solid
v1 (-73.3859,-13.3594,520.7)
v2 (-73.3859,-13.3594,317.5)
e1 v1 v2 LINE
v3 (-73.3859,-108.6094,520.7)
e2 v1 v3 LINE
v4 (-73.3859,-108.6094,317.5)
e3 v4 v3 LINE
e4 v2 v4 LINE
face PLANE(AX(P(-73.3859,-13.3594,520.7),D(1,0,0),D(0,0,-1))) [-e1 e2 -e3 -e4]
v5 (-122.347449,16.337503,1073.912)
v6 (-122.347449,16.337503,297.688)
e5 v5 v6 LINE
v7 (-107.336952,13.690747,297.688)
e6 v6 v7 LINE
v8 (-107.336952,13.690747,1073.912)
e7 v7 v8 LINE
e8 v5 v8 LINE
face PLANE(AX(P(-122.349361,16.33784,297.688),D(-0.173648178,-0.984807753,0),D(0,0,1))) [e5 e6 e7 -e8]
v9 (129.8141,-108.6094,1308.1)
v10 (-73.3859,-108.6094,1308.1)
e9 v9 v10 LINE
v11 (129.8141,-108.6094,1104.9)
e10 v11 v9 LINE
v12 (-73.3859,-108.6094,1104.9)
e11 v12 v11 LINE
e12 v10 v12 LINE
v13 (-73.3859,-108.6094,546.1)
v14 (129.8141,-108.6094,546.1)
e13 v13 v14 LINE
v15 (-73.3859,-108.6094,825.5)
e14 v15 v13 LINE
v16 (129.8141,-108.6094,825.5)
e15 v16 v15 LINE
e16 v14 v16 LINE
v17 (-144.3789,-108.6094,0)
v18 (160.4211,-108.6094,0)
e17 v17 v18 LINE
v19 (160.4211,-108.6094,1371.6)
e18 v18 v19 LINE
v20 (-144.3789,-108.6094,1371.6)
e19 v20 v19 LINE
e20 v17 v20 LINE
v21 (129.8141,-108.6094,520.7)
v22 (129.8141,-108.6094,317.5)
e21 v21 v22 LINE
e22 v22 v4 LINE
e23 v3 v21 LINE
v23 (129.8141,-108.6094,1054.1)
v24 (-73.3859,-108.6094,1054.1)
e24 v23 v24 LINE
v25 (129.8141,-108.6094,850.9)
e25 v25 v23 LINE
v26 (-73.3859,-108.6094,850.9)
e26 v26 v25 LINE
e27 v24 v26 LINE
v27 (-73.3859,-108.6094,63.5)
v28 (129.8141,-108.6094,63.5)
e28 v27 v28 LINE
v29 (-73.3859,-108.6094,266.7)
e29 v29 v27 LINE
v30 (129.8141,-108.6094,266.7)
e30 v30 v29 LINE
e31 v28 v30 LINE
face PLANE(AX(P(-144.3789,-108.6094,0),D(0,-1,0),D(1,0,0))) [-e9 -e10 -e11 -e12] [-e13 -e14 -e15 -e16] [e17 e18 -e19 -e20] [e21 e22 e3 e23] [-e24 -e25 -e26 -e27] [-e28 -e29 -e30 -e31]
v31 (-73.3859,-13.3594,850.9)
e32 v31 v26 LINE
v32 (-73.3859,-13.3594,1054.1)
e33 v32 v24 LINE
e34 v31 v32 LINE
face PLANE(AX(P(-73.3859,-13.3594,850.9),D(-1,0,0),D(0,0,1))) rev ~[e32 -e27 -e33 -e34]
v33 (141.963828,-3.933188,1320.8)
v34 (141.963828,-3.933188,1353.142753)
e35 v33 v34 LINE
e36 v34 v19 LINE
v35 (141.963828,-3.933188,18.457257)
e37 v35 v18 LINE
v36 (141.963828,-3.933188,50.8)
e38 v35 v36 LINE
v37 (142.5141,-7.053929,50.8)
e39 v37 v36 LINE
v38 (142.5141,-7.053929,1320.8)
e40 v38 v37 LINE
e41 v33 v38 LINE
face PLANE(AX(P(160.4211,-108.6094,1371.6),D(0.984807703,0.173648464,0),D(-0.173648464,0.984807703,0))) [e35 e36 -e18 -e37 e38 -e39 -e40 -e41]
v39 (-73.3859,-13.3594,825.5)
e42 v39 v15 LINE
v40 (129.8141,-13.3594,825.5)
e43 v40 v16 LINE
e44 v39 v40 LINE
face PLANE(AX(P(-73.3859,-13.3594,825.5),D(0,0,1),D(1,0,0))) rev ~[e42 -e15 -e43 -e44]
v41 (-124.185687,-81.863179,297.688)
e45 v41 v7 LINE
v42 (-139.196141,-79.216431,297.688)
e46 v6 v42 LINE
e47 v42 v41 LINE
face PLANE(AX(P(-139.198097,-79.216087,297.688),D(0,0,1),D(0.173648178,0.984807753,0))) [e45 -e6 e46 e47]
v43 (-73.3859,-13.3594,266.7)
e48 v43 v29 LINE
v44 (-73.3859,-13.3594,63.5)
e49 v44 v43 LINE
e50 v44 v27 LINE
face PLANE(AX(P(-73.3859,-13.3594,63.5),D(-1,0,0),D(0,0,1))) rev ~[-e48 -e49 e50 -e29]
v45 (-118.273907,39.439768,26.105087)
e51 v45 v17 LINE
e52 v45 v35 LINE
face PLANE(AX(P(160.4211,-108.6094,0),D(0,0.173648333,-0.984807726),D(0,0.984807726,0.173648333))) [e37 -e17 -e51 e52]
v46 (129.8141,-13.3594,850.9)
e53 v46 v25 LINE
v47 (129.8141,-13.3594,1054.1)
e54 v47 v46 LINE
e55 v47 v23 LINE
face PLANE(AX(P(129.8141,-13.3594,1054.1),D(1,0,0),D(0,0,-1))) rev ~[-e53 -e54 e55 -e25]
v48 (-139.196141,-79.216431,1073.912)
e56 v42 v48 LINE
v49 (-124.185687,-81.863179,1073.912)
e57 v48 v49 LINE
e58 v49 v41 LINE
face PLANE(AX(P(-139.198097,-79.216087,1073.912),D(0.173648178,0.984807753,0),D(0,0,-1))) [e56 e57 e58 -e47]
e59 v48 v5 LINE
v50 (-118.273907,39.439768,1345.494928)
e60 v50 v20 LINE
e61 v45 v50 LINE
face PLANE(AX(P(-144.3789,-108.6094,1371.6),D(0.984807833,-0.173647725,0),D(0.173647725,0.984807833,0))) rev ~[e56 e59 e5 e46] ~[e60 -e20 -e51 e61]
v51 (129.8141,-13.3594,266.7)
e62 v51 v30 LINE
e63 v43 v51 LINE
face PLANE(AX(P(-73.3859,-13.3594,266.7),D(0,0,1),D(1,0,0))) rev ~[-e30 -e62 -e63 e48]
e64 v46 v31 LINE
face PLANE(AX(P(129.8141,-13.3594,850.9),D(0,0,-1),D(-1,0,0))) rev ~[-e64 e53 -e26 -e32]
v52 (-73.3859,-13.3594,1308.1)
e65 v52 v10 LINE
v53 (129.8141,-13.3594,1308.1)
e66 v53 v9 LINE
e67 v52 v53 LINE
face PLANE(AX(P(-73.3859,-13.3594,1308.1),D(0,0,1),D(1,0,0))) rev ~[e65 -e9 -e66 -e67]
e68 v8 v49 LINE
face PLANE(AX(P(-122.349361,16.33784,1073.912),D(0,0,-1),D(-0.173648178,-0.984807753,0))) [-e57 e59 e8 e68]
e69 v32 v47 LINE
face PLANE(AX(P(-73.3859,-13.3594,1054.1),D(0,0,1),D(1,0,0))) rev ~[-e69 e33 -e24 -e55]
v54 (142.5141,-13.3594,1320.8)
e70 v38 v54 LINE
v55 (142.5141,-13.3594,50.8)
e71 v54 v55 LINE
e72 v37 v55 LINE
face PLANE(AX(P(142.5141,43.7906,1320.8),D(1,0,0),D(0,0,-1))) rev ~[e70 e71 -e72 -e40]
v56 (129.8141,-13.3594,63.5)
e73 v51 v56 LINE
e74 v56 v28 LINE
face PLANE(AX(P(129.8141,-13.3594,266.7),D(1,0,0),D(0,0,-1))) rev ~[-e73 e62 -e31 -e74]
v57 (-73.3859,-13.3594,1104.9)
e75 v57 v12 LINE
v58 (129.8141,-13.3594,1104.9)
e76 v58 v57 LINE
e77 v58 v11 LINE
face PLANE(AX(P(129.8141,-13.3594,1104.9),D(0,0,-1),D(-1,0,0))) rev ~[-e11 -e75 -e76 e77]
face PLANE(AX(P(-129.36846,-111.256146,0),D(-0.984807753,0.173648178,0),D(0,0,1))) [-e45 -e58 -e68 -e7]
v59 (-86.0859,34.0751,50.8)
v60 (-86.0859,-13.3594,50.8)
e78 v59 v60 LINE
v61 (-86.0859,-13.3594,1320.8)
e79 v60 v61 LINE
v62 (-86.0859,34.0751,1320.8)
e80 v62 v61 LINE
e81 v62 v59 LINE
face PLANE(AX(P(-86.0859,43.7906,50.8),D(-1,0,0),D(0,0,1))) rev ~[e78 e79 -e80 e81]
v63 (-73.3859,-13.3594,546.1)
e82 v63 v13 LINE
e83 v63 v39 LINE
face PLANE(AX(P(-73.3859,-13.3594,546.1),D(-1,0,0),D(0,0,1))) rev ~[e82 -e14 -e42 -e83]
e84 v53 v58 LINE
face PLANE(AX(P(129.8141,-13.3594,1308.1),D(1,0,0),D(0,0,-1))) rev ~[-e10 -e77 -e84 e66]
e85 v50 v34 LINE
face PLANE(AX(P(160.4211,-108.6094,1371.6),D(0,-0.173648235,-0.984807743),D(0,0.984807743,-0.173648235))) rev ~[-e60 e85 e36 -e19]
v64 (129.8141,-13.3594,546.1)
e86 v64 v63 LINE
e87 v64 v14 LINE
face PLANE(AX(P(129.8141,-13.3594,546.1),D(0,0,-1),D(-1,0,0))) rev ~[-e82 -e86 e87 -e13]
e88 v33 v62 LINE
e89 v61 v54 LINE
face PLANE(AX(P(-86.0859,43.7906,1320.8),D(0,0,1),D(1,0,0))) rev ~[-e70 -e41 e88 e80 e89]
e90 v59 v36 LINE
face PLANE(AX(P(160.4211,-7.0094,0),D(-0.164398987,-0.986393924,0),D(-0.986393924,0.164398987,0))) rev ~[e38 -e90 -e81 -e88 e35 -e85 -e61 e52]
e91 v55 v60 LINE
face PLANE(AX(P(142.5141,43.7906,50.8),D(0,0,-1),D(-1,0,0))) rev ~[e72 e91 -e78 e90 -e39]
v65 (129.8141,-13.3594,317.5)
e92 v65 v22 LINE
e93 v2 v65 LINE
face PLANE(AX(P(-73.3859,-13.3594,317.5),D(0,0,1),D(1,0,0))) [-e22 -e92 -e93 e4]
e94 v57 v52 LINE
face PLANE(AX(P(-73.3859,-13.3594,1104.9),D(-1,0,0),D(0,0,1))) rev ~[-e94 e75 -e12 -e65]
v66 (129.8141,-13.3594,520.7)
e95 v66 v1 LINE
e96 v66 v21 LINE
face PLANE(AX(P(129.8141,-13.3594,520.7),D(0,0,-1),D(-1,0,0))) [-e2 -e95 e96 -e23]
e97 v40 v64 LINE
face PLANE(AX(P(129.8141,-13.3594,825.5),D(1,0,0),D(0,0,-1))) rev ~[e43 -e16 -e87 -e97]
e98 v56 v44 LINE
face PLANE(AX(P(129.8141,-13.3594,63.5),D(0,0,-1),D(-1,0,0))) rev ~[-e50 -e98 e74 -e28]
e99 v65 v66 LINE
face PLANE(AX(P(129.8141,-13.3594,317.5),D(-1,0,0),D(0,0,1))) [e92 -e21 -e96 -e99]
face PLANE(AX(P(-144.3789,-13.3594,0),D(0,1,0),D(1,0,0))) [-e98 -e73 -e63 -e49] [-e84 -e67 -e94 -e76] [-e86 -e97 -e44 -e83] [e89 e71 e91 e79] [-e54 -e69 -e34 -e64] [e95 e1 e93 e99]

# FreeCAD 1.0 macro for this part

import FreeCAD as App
import Part
import Sketcher

V = App.Vector
Q = App.Units.Quantity


def add_polygon(sketch, points):
    """Adds a closed chain of lines whose ends are joined by coincident constraints."""
    first, n = sketch.GeometryCount, len(points)
    for a, b in zip(points, points[1:] + points[:1]):
        sketch.addGeometry(Part.LineSegment(App.Vector(*a, 0), App.Vector(*b, 0)), False)
    for i in range(n):
        sketch.addConstraint(Sketcher.Constraint("Coincident", first + i, 2, first + (i + 1) % n, 1))

doc = App.newDocument("Part")
body = doc.addObject("PartDesign::Body", "Body")

# Sketch on XY plane
sketch1 = body.newObject("Sketcher::SketchObject", "Sketch")
sketch1.AttachmentSupport = (doc.getObject("XY_Plane"), [""])
sketch1.MapMode = "FlatFace"
add_polygon(sketch1, [(160, -7), (-144, 44), (-144, -109), (160, -109)])  # lines 0-3
sketch1.addConstraint(Sketcher.Constraint("Vertical", 1))
sketch1.addConstraint(Sketcher.Constraint("Horizontal", 2))
sketch1.addConstraint(Sketcher.Constraint("Vertical", 3))
sketch1.addConstraint(Sketcher.Constraint("DistanceX", 2, 1, 2, 2, Q("12 in")))
sketch1.addConstraint(Sketcher.Constraint("DistanceY", 1, 2, 1, 1, Q("6 in")))
sketch1.addConstraint(Sketcher.Constraint("DistanceY", 3, 1, 3, 2, Q("4 in")))
sketch1.addConstraint(Sketcher.Constraint("DistanceX", 0, 2, -1, 1, Q("5.6842 in")))
sketch1.addConstraint(Sketcher.Constraint("DistanceY", -1, 1, 0, 2, 43.7906))
pad1 = body.newObject("PartDesign::Pad", "Pad")
pad1.Profile = sketch1
pad1.Length = Q("54 in")

# Sketch on YZ plane
sketch2 = body.newObject("Sketcher::SketchObject", "Sketch001")
sketch2.AttachmentSupport = (doc.getObject("YZ_Plane"), [""])
sketch2.MapMode = "FlatFace"
sketch2.AttachmentOffset = App.Placement(V(0, 0, 6.3157913 * 25.4), App.Rotation())
add_polygon(sketch2, [(191, 1509), (-109, 1372), (191, 1319)])  # lines 0-2
sketch2.addConstraint(Sketcher.Constraint("Vertical", 2))
sketch2.addConstraint(Sketcher.Constraint("Angle", 1, Q("-10 deg")))
sketch2.addConstraint(Sketcher.Constraint("DistanceY", -1, 1, 0, 2, Q("54 in")))
sketch2.addConstraint(Sketcher.Constraint("DistanceY", 2, 1, 2, 2, Q("7.489 in")))
sketch2.addConstraint(Sketcher.Constraint("DistanceY", -1, 1, 1, 2, Q("51.9188 in")))
sketch2.addConstraint(Sketcher.Constraint("DistanceX", 0, 2, -1, 1, 108.6094))
pocket1 = body.newObject("PartDesign::Pocket", "Pocket")
pocket1.Profile = sketch2
pocket1.Length = Q("54 in")

# Sketch on YZ plane
sketch3 = body.newObject("Sketcher::SketchObject", "Sketch002")
sketch3.AttachmentSupport = (doc.getObject("YZ_Plane"), [""])
sketch3.MapMode = "FlatFace"
sketch3.AttachmentOffset = App.Placement(V(0, 0, 6.3157913 * 25.4), App.Rotation())
add_polygon(sketch3, [(58, 29), (-109, 0), (58, -35)])  # lines 0-2
sketch3.addConstraint(Sketcher.Constraint("Vertical", 2))
sketch3.addConstraint(Sketcher.Constraint("PointOnObject", 0, 2, -1))
sketch3.addConstraint(Sketcher.Constraint("Angle", 0, Q("-170 deg")))
sketch3.addConstraint(Sketcher.Constraint("DistanceY", 2, 1, 2, 2, 64.7358))
sketch3.addConstraint(Sketcher.Constraint("Distance", 0, 168.6846))
sketch3.addConstraint(Sketcher.Constraint("DistanceX", 0, 2, -1, 1, 108.6094))
pocket2 = body.newObject("PartDesign::Pocket", "Pocket001")
pocket2.Profile = sketch3
pocket2.Length = Q("54 in")

# Sketch on XY plane
sketch4 = body.newObject("Sketcher::SketchObject", "Sketch003")
sketch4.AttachmentSupport = (doc.getObject("XY_Plane"), [""])
sketch4.MapMode = "FlatFace"
sketch4.AttachmentOffset = App.Placement(V(0, 0, 54 * 25.4), App.Rotation())
add_polygon(sketch4, [(-236, 85), (-144, -109), (-110, 85)])  # lines 0-2
sketch4.addConstraint(Sketcher.Constraint("Horizontal", 2))
sketch4.addConstraint(Sketcher.Constraint("Angle", 1, Q("80 deg")))
sketch4.addConstraint(Sketcher.Constraint("Angle", 0, Q("-64.6598 deg")))
sketch4.addConstraint(Sketcher.Constraint("DistanceX", 2, 2, 2, 1, 126.109))
sketch4.addConstraint(Sketcher.Constraint("DistanceX", 0, 2, -1, 1, Q("5.6842 in")))
sketch4.addConstraint(Sketcher.Constraint("DistanceY", 0, 2, -1, 1, 108.6094))
pocket3 = body.newObject("PartDesign::Pocket", "Pocket002")
pocket3.Profile = sketch4
pocket3.Length = Q("54 in")

# Sketch on XY plane
sketch5 = body.newObject("Sketcher::SketchObject", "Sketch004")
sketch5.AttachmentSupport = (doc.getObject("XY_Plane"), [""])
sketch5.MapMode = "FlatFace"
sketch5.AttachmentOffset = App.Placement(V(0, 0, 54 * 25.4), App.Rotation())
add_polygon(sketch5, [(129, 68), (160, -109), (268, 68)])  # lines 0-2
sketch5.addConstraint(Sketcher.Constraint("Horizontal", 2))
sketch5.addConstraint(Sketcher.Constraint("Angle", 0, Q("-80 deg")))
sketch5.addConstraint(Sketcher.Constraint("DistanceX", 2, 2, 2, 1, 138.6038))
sketch5.addConstraint(Sketcher.Constraint("DistanceX", -1, 1, 0, 2, Q("6.3158 in")))
sketch5.addConstraint(Sketcher.Constraint("DistanceY", -1, 1, 1, 2, Q("2.6584 in")))
sketch5.addConstraint(Sketcher.Constraint("Distance", 0, 178.8498))
pocket4 = body.newObject("PartDesign::Pocket", "Pocket003")
pocket4.Profile = sketch5
pocket4.Length = Q("54 in")

# Sketch on XZ plane
sketch6 = body.newObject("Sketcher::SketchObject", "Sketch005")
sketch6.AttachmentSupport = (doc.getObject("XZ_Plane"), [""])
sketch6.MapMode = "FlatFace"
sketch6.AttachmentOffset = App.Placement(V(0, 0, 108.6094), App.Rotation())
add_polygon(sketch6, [(143, 51), (143, 1321), (-86, 1321), (-86, 51)])  # lines 0-3
sketch6.addConstraint(Sketcher.Constraint("Vertical", 0))
sketch6.addConstraint(Sketcher.Constraint("Horizontal", 1))
sketch6.addConstraint(Sketcher.Constraint("Vertical", 2))
sketch6.addConstraint(Sketcher.Constraint("Horizontal", 3))
sketch6.addConstraint(Sketcher.Constraint("DistanceX", 1, 2, 1, 1, Q("9 in")))
sketch6.addConstraint(Sketcher.Constraint("DistanceY", -1, 1, 2, 2, Q("2 in")))
sketch6.addConstraint(Sketcher.Constraint("DistanceY", 0, 1, 0, 2, Q("50 in")))
sketch6.addConstraint(Sketcher.Constraint("DistanceX", -1, 1, 0, 2, Q("5.6108 in")))
pad2 = body.newObject("PartDesign::Pad", "Pad001")
pad2.Profile = sketch6
pad2.Length = Q("6 in")
pad2.Reversed = True

# Sketch on XZ plane
sketch7 = body.newObject("Sketcher::SketchObject", "Sketch006")
sketch7.AttachmentSupport = (doc.getObject("XZ_Plane"), [""])
sketch7.MapMode = "FlatFace"
sketch7.AttachmentOffset = App.Placement(V(0, 0, -43.7906), App.Rotation())
add_polygon(sketch7, [(-86, 51), (-86, 1321), (143, 1321), (143, 51)])  # lines 0-3
sketch7.addConstraint(Sketcher.Constraint("Vertical", 0))
sketch7.addConstraint(Sketcher.Constraint("Horizontal", 1))
sketch7.addConstraint(Sketcher.Constraint("Vertical", 2))
sketch7.addConstraint(Sketcher.Constraint("Horizontal", 3))
sketch7.addConstraint(Sketcher.Constraint("DistanceX", 1, 1, 1, 2, Q("9 in")))
sketch7.addConstraint(Sketcher.Constraint("DistanceY", 0, 1, 0, 2, Q("50 in")))
sketch7.addConstraint(Sketcher.Constraint("DistanceY", -1, 1, 0, 2, Q("52 in")))
sketch7.addConstraint(Sketcher.Constraint("DistanceX", 0, 2, -1, 1, Q("3.3892 in")))
pocket5 = body.newObject("PartDesign::Pocket", "Pocket004")
pocket5.Profile = sketch7
pocket5.Length = Q("2.25 in")
pocket5.Reversed = True

# Sketch on XZ plane
sketch8 = body.newObject("Sketcher::SketchObject", "Sketch007")
sketch8.AttachmentSupport = (doc.getObject("XZ_Plane"), [""])
sketch8.MapMode = "FlatFace"
sketch8.AttachmentOffset = App.Placement(V(0, 0, 13.3594), App.Rotation())
add_polygon(sketch8, [(-73, 64), (-73, 267), (130, 267), (130, 64)])  # lines 0-3
sketch8.addConstraint(Sketcher.Constraint("Vertical", 0))
sketch8.addConstraint(Sketcher.Constraint("Horizontal", 1))
sketch8.addConstraint(Sketcher.Constraint("Vertical", 2))
sketch8.addConstraint(Sketcher.Constraint("Horizontal", 3))
sketch8.addConstraint(Sketcher.Constraint("Equal", 3, 0))
sketch8.addConstraint(Sketcher.Constraint("DistanceX", 1, 1, 1, 2, Q("8 in")))
sketch8.addConstraint(Sketcher.Constraint("DistanceY", -1, 1, 0, 2, Q("10.5 in")))
sketch8.addConstraint(Sketcher.Constraint("DistanceX", 0, 2, -1, 1, Q("2.8892 in")))
pocket6 = body.newObject("PartDesign::Pocket", "Pocket005")
pocket6.Profile = sketch8
pocket6.Length = Q("6.875 in")
pocket6.Reversed = True

# Sketch on XZ plane
sketch9 = body.newObject("Sketcher::SketchObject", "Sketch008")
sketch9.AttachmentSupport = (doc.getObject("XZ_Plane"), [""])
sketch9.MapMode = "FlatFace"
sketch9.AttachmentOffset = App.Placement(V(0, 0, 13.3594), App.Rotation())
add_polygon(sketch9, [(-73, 1105), (-73, 1308), (130, 1308), (130, 1105)])  # lines 0-3
sketch9.addConstraint(Sketcher.Constraint("Vertical", 0))
sketch9.addConstraint(Sketcher.Constraint("Horizontal", 1))
sketch9.addConstraint(Sketcher.Constraint("Vertical", 2))
sketch9.addConstraint(Sketcher.Constraint("Horizontal", 3))
sketch9.addConstraint(Sketcher.Constraint("Equal", 3, 0))
sketch9.addConstraint(Sketcher.Constraint("DistanceX", 1, 1, 1, 2, Q("8 in")))
sketch9.addConstraint(Sketcher.Constraint("DistanceY", -1, 1, 0, 2, Q("51.5 in")))
sketch9.addConstraint(Sketcher.Constraint("DistanceX", 0, 2, -1, 1, Q("2.8892 in")))
pocket7 = body.newObject("PartDesign::Pocket", "Pocket006")
pocket7.Profile = sketch9
pocket7.Length = Q("6.5625 in")
pocket7.Reversed = True

# Sketch on XZ plane
sketch10 = body.newObject("Sketcher::SketchObject", "Sketch009")
sketch10.AttachmentSupport = (doc.getObject("XZ_Plane"), [""])
sketch10.MapMode = "FlatFace"
sketch10.AttachmentOffset = App.Placement(V(0, 0, 13.3594), App.Rotation())
add_polygon(sketch10, [(130, 318), (-73, 318), (-73, 521), (130, 521)])  # lines 0-3
sketch10.addConstraint(Sketcher.Constraint("Horizontal", 0))
sketch10.addConstraint(Sketcher.Constraint("Vertical", 1))
sketch10.addConstraint(Sketcher.Constraint("Horizontal", 2))
sketch10.addConstraint(Sketcher.Constraint("Vertical", 3))
sketch10.addConstraint(Sketcher.Constraint("Equal", 2, 1))
sketch10.addConstraint(Sketcher.Constraint("DistanceX", 0, 2, 0, 1, Q("8 in")))
sketch10.addConstraint(Sketcher.Constraint("DistanceY", -1, 1, 0, 2, Q("12.5 in")))
sketch10.addConstraint(Sketcher.Constraint("DistanceX", 0, 2, -1, 1, Q("2.8892 in")))
pocket8 = body.newObject("PartDesign::Pocket", "Pocket007")
pocket8.Profile = sketch10
pocket8.Length = Q("6.5625 in")
pocket8.Reversed = True

# Sketch on XZ plane
sketch11 = body.newObject("Sketcher::SketchObject", "Sketch010")
sketch11.AttachmentSupport = (doc.getObject("XZ_Plane"), [""])
sketch11.MapMode = "FlatFace"
sketch11.AttachmentOffset = App.Placement(V(0, 0, 13.3594), App.Rotation())
add_polygon(sketch11, [(-73, 851), (-73, 1054), (130, 1054), (130, 851)])  # lines 0-3
sketch11.addConstraint(Sketcher.Constraint("Vertical", 0))
sketch11.addConstraint(Sketcher.Constraint("Horizontal", 1))
sketch11.addConstraint(Sketcher.Constraint("Vertical", 2))
sketch11.addConstraint(Sketcher.Constraint("Horizontal", 3))
sketch11.addConstraint(Sketcher.Constraint("Equal", 3, 0))
sketch11.addConstraint(Sketcher.Constraint("DistanceX", 1, 1, 1, 2, Q("8 in")))
sketch11.addConstraint(Sketcher.Constraint("DistanceY", -1, 1, 0, 2, Q("41.5 in")))
sketch11.addConstraint(Sketcher.Constraint("DistanceX", 0, 2, -1, 1, Q("2.8892 in")))
pocket9 = body.newObject("PartDesign::Pocket", "Pocket008")
pocket9.Profile = sketch11
pocket9.Length = Q("6.5625 in")
pocket9.Reversed = True

# Sketch on XZ plane
sketch12 = body.newObject("Sketcher::SketchObject", "Sketch011")
sketch12.AttachmentSupport = (doc.getObject("XZ_Plane"), [""])
sketch12.MapMode = "FlatFace"
sketch12.AttachmentOffset = App.Placement(V(0, 0, 13.3594), App.Rotation())
add_polygon(sketch12, [(-73, 546), (-73, 826), (130, 826), (130, 546)])  # lines 0-3
sketch12.addConstraint(Sketcher.Constraint("Vertical", 0))
sketch12.addConstraint(Sketcher.Constraint("Horizontal", 1))
sketch12.addConstraint(Sketcher.Constraint("Vertical", 2))
sketch12.addConstraint(Sketcher.Constraint("Horizontal", 3))
sketch12.addConstraint(Sketcher.Constraint("DistanceX", 1, 1, 1, 2, Q("8 in")))
sketch12.addConstraint(Sketcher.Constraint("DistanceY", 0, 1, 0, 2, Q("11 in")))
sketch12.addConstraint(Sketcher.Constraint("DistanceY", -1, 1, 0, 2, Q("32.5 in")))
sketch12.addConstraint(Sketcher.Constraint("DistanceX", 0, 2, -1, 1, Q("2.8892 in")))
pocket10 = body.newObject("PartDesign::Pocket", "Pocket009")
pocket10.Profile = sketch12
pocket10.Length = Q("6.5625 in")
pocket10.Reversed = True

# Sketch on an angled plane
sketch13 = body.newObject("Sketcher::SketchObject", "Sketch012")
sketch13.Placement = App.Placement(V(-144.3789, -108.6094, 0), App.Rotation(V(0, 0, 1), V(0.173648178, 0.984807753, 0), V(-0.984807753, 0.173648178, 0), "ZXY"))
add_polygon(sketch13, [(1074, 127), (298, 127), (298, 30), (1074, 30)])  # lines 0-3
sketch13.addConstraint(Sketcher.Constraint("Horizontal", 0))
sketch13.addConstraint(Sketcher.Constraint("Vertical", 1))
sketch13.addConstraint(Sketcher.Constraint("Horizontal", 2))
sketch13.addConstraint(Sketcher.Constraint("Vertical", 3))
sketch13.addConstraint(Sketcher.Constraint("DistanceX", 0, 2, 0, 1, Q("30.56 in")))
sketch13.addConstraint(Sketcher.Constraint("DistanceY", 1, 2, 1, 1, Q("3.82 in")))
sketch13.addConstraint(Sketcher.Constraint("DistanceX", -1, 1, 0, 2, Q("11.72 in")))
sketch13.addConstraint(Sketcher.Constraint("DistanceY", -1, 1, 0, 2, 126.8744))
pocket11 = body.newObject("PartDesign::Pocket", "Pocket010")
pocket11.Profile = sketch13
pocket11.Length = Q("0.6 in")

doc.recompute()
